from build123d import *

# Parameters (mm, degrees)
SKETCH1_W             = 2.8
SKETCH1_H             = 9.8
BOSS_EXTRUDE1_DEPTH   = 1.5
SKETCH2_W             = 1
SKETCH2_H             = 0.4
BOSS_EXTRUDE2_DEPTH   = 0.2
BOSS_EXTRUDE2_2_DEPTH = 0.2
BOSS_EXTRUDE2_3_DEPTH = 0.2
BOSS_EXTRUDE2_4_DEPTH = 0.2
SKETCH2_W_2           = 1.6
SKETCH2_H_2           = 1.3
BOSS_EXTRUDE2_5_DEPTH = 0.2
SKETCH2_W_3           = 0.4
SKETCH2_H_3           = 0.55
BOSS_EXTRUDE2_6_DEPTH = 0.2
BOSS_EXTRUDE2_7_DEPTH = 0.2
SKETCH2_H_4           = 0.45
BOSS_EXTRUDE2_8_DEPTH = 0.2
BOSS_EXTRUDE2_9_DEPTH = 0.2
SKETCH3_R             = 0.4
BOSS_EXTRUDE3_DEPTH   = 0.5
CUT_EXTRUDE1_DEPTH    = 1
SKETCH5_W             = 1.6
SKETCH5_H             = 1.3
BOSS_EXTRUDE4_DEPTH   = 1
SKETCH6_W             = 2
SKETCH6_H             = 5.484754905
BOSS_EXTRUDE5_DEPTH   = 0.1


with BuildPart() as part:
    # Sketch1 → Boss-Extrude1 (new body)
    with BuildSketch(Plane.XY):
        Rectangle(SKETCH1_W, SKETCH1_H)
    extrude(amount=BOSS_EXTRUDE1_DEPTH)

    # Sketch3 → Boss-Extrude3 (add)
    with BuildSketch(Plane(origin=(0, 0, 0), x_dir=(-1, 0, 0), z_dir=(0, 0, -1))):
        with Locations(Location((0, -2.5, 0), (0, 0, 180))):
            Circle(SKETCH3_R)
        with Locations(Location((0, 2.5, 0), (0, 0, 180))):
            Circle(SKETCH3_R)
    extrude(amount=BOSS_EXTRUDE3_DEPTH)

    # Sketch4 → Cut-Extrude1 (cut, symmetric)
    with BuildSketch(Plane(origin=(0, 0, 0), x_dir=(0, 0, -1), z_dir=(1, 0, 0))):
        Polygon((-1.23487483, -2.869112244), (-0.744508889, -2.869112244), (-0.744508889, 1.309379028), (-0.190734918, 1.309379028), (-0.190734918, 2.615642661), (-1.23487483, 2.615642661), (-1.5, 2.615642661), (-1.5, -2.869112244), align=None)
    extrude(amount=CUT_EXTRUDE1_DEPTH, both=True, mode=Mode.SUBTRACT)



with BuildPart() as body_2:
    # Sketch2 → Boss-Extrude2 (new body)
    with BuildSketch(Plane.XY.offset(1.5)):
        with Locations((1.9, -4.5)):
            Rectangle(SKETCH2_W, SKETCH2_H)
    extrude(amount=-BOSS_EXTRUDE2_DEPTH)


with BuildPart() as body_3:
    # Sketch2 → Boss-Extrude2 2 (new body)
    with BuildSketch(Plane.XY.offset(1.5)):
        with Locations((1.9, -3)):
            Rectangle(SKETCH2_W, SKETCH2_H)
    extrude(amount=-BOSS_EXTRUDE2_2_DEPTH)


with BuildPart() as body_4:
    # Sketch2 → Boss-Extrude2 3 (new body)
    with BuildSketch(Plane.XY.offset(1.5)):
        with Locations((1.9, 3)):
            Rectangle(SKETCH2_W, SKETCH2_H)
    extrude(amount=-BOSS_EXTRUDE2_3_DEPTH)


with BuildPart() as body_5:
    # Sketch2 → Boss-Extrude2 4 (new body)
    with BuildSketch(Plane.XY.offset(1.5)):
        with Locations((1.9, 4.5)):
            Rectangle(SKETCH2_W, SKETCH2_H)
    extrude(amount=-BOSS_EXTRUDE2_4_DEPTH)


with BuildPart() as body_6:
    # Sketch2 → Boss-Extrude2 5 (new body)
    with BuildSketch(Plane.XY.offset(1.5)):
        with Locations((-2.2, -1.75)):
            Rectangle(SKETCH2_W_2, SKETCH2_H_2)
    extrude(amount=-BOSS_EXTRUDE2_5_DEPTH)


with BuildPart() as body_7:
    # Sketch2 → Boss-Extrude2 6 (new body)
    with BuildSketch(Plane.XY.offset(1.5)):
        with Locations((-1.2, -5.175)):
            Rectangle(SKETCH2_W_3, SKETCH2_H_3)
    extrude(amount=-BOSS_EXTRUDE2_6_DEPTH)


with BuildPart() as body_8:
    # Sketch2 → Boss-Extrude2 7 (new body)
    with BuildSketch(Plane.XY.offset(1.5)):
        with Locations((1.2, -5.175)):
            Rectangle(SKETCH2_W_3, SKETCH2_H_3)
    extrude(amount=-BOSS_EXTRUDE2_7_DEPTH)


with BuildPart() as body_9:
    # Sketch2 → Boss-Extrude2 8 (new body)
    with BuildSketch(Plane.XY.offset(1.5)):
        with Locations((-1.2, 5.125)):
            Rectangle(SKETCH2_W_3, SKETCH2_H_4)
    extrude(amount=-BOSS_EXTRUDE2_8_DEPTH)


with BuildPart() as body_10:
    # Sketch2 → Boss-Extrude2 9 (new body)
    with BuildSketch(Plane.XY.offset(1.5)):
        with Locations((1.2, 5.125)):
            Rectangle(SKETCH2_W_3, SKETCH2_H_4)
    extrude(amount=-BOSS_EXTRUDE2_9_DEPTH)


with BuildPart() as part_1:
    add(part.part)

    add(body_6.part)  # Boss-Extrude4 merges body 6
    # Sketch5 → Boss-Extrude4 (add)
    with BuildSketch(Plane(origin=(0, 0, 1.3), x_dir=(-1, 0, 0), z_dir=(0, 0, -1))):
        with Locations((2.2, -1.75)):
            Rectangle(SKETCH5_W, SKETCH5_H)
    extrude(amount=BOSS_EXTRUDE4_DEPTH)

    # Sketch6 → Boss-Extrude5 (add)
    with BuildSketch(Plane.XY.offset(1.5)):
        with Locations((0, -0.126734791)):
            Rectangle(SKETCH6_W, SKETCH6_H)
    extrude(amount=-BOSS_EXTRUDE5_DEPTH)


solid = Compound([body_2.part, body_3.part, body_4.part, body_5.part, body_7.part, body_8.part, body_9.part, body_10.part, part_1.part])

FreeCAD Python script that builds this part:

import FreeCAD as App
import Part
import Sketcher
from FreeCAD import Vector
Q = App.Units.Quantity

doc = App.newDocument("Part")
body = doc.addObject("PartDesign::Body", "Body")

sketch1 = body.newObject("Sketcher::SketchObject", "Sketch")
sketch1.AttachmentSupport = (doc.getObject("XY_Plane"), [""])
sketch1.MapMode = "FlatFace"
sketch1.addGeometry([
    Part.LineSegment(Vector(-1.4, 4.9, 0), Vector(-1.4, -4.9, 0)),
    Part.LineSegment(Vector(-1.4, -4.9, 0), Vector(1.4, -4.9, 0)),
    Part.LineSegment(Vector(1.4, -4.9, 0), Vector(1.4, 4.9, 0)),
    Part.LineSegment(Vector(1.4, 4.9, 0), Vector(-1.4, 4.9, 0)),
], False)
sketch1.addConstraint([
    Sketcher.Constraint("Coincident", 0, 2, 1, 1),
    Sketcher.Constraint("Coincident", 1, 2, 2, 1),
    Sketcher.Constraint("Coincident", 2, 2, 3, 1),
    Sketcher.Constraint("Coincident", 3, 2, 0, 1),
    Sketcher.Constraint("Vertical", 0),
    Sketcher.Constraint("Horizontal", 1),
    Sketcher.Constraint("Vertical", 2),
    Sketcher.Constraint("Horizontal", 3),
    Sketcher.Constraint("Symmetric", 0, 2, 2, 2, -1, 1),
    Sketcher.Constraint("DistanceX", 1, 1, 1, 2, Q("2.8 mm")),
    Sketcher.Constraint("DistanceY", 0, 2, 0, 1, Q("9.8 mm")),
])
pad1 = body.newObject("PartDesign::Pad", "Pad")
pad1.Profile = sketch1
pad1.Length = 1.5

sketch2 = body.newObject("Sketcher::SketchObject", "Sketch001")
sketch2.AttachmentSupport = (doc.getObject("XY_Plane"), [""])
sketch2.MapMode = "FlatFace"
sketch2.addGeometry([
    Part.Circle(Vector(0, -2.5, 0), Vector(0, 0, 1), 0.4),
    Part.Circle(Vector(0, 2.5, 0), Vector(0, 0, 1), 0.4),
], False)
sketch2.addConstraint([
    Sketcher.Constraint("Equal", 0, 1),
    Sketcher.Constraint("Symmetric", 0, 3, 1, 3, -1, 1),
    Sketcher.Constraint("PointOnObject", 0, 3, -2),
    Sketcher.Constraint("Diameter", 0, Q("0.8 mm")),
    Sketcher.Constraint("DistanceY", 0, 3, 1, 3, Q("5 mm")),
])
pad2 = body.newObject("PartDesign::Pad", "Pad001")
pad2.Profile = sketch2
pad2.Length = 0.5
pad2.Reversed = True

sketch3 = body.newObject("Sketcher::SketchObject", "Sketch002")
sketch3.AttachmentSupport = (doc.getObject("YZ_Plane"), [""])
sketch3.MapMode = "FlatFace"
sketch3.addGeometry([
    Part.LineSegment(Vector(-2.9, 0.7, 0), Vector(1.3, 0.7, 0)),
    Part.LineSegment(Vector(1.3, 0.7, 0), Vector(1.3, 0.2, 0)),
    Part.LineSegment(Vector(1.3, 0.2, 0), Vector(2.6, 0.2, 0)),
    Part.LineSegment(Vector(2.6, 0.2, 0), Vector(2.6, 1.5, 0)),
    Part.LineSegment(Vector(2.6, 1.5, 0), Vector(-2.9, 1.5, 0)),
    Part.LineSegment(Vector(-2.9, 1.5, 0), Vector(-2.9, 0.7, 0)),
], False)
sketch3.addConstraint([
    Sketcher.Constraint("Coincident", 0, 2, 1, 1),
    Sketcher.Constraint("Coincident", 1, 2, 2, 1),
    Sketcher.Constraint("Coincident", 2, 2, 3, 1),
    Sketcher.Constraint("Coincident", 3, 2, 4, 1),
    Sketcher.Constraint("Coincident", 4, 2, 5, 1),
    Sketcher.Constraint("Coincident", 5, 2, 0, 1),
    Sketcher.Constraint("Horizontal", 0),
    Sketcher.Constraint("Vertical", 1),
    Sketcher.Constraint("Horizontal", 2),
    Sketcher.Constraint("Vertical", 3),
    Sketcher.Constraint("Horizontal", 4),
    Sketcher.Constraint("Vertical", 5),
    Sketcher.Constraint("DistanceY", -1, 1, 3, 2, Q("1.5 mm")),
    Sketcher.Constraint("DistanceX", 0, 1, 0, 2, Q("4.178491 mm")),
    Sketcher.Constraint("DistanceY", 5, 2, 5, 1, Q("0.755491 mm")),
    Sketcher.Constraint("DistanceX", 2, 1, 2, 2, Q("1.306264 mm")),
    Sketcher.Constraint("DistanceY", 1, 2, 1, 1, Q("0.553774 mm")),
    Sketcher.Constraint("DistanceX", -1, 1, 0, 2, Q("1.309379 mm")),
])
pocket1 = body.newObject("PartDesign::Pocket", "Pocket")
pocket1.Profile = sketch3
pocket1.Length = 2
pocket1.Midplane = True
body2 = doc.addObject("PartDesign::Body", "Body001")

sketch4 = body2.newObject("Sketcher::SketchObject", "Sketch003")
sketch4.AttachmentSupport = (doc.getObject("XY_Plane001"), [""])
sketch4.MapMode = "FlatFace"
sketch4.AttachmentOffset = App.Placement(Vector(0, 0, 1.5), App.Rotation())
sketch4.addGeometry([
    Part.LineSegment(Vector(1.4, -4.3, 0), Vector(1.4, -4.7, 0)),
    Part.LineSegment(Vector(1.4, -4.7, 0), Vector(2.4, -4.7, 0)),
    Part.LineSegment(Vector(2.4, -4.7, 0), Vector(2.4, -4.3, 0)),
    Part.LineSegment(Vector(2.4, -4.3, 0), Vector(1.4, -4.3, 0)),
], False)
sketch4.addConstraint([
    Sketcher.Constraint("Coincident", 0, 2, 1, 1),
    Sketcher.Constraint("Coincident", 1, 2, 2, 1),
    Sketcher.Constraint("Coincident", 2, 2, 3, 1),
    Sketcher.Constraint("Coincident", 3, 2, 0, 1),
    Sketcher.Constraint("Vertical", 0),
    Sketcher.Constraint("Horizontal", 1),
    Sketcher.Constraint("Vertical", 2),
    Sketcher.Constraint("Horizontal", 3),
    Sketcher.Constraint("DistanceX", 1, 1, 1, 2, Q("1 mm")),
    Sketcher.Constraint("DistanceY", 0, 2, 0, 1, Q("0.4 mm")),
    Sketcher.Constraint("DistanceX", -1, 1, 0, 2, Q("1.4 mm")),
    Sketcher.Constraint("DistanceY", 0, 2, -1, 1, Q("4.7 mm")),
])
pad3 = body2.newObject("PartDesign::Pad", "Pad002")
pad3.Profile = sketch4
pad3.Length = 0.2
pad3.Reversed = True
body3 = doc.addObject("PartDesign::Body", "Body002")

sketch5 = body3.newObject("Sketcher::SketchObject", "Sketch004")
sketch5.AttachmentSupport = (doc.getObject("XY_Plane002"), [""])
sketch5.MapMode = "FlatFace"
sketch5.AttachmentOffset = App.Placement(Vector(0, 0, 1.5), App.Rotation())
sketch5.addGeometry([
    Part.LineSegment(Vector(1.4, -2.8, 0), Vector(1.4, -3.2, 0)),
    Part.LineSegment(Vector(1.4, -3.2, 0), Vector(2.4, -3.2, 0)),
    Part.LineSegment(Vector(2.4, -3.2, 0), Vector(2.4, -2.8, 0)),
    Part.LineSegment(Vector(2.4, -2.8, 0), Vector(1.4, -2.8, 0)),
], False)
sketch5.addConstraint([
    Sketcher.Constraint("Coincident", 0, 2, 1, 1),
    Sketcher.Constraint("Coincident", 1, 2, 2, 1),
    Sketcher.Constraint("Coincident", 2, 2, 3, 1),
    Sketcher.Constraint("Coincident", 3, 2, 0, 1),
    Sketcher.Constraint("Vertical", 0),
    Sketcher.Constraint("Horizontal", 1),
    Sketcher.Constraint("Vertical", 2),
    Sketcher.Constraint("Horizontal", 3),
    Sketcher.Constraint("DistanceX", 1, 1, 1, 2, Q("1 mm")),
    Sketcher.Constraint("DistanceY", 0, 2, 0, 1, Q("0.4 mm")),
    Sketcher.Constraint("DistanceX", -1, 1, 0, 2, Q("1.4 mm")),
    Sketcher.Constraint("DistanceY", 0, 2, -1, 1, Q("3.2 mm")),
])
pad4 = body3.newObject("PartDesign::Pad", "Pad003")
pad4.Profile = sketch5
pad4.Length = 0.2
pad4.Reversed = True
body4 = doc.addObject("PartDesign::Body", "Body003")

sketch6 = body4.newObject("Sketcher::SketchObject", "Sketch005")
sketch6.AttachmentSupport = (doc.getObject("XY_Plane003"), [""])
sketch6.MapMode = "FlatFace"
sketch6.AttachmentOffset = App.Placement(Vector(0, 0, 1.5), App.Rotation())
sketch6.addGeometry([
    Part.LineSegment(Vector(1.4, 3.2, 0), Vector(1.4, 2.8, 0)),
    Part.LineSegment(Vector(1.4, 2.8, 0), Vector(2.4, 2.8, 0)),
    Part.LineSegment(Vector(2.4, 2.8, 0), Vector(2.4, 3.2, 0)),
    Part.LineSegment(Vector(2.4, 3.2, 0), Vector(1.4, 3.2, 0)),
], False)
sketch6.addConstraint([
    Sketcher.Constraint("Coincident", 0, 2, 1, 1),
    Sketcher.Constraint("Coincident", 1, 2, 2, 1),
    Sketcher.Constraint("Coincident", 2, 2, 3, 1),
    Sketcher.Constraint("Coincident", 3, 2, 0, 1),
    Sketcher.Constraint("Vertical", 0),
    Sketcher.Constraint("Horizontal", 1),
    Sketcher.Constraint("Vertical", 2),
    Sketcher.Constraint("Horizontal", 3),
    Sketcher.Constraint("DistanceX", 1, 1, 1, 2, Q("1 mm")),
    Sketcher.Constraint("DistanceY", 0, 2, 0, 1, Q("0.4 mm")),
    Sketcher.Constraint("DistanceX", -1, 1, 0, 2, Q("1.4 mm")),
    Sketcher.Constraint("DistanceY", -1, 1, 0, 2, Q("2.8 mm")),
])
pad5 = body4.newObject("PartDesign::Pad", "Pad004")
pad5.Profile = sketch6
pad5.Length = 0.2
pad5.Reversed = True
body5 = doc.addObject("PartDesign::Body", "Body004")

sketch7 = body5.newObject("Sketcher::SketchObject", "Sketch006")
sketch7.AttachmentSupport = (doc.getObject("XY_Plane004"), [""])
sketch7.MapMode = "FlatFace"
sketch7.AttachmentOffset = App.Placement(Vector(0, 0, 1.5), App.Rotation())
sketch7.addGeometry([
    Part.LineSegment(Vector(1.4, 4.7, 0), Vector(1.4, 4.3, 0)),
    Part.LineSegment(Vector(1.4, 4.3, 0), Vector(2.4, 4.3, 0)),
    Part.LineSegment(Vector(2.4, 4.3, 0), Vector(2.4, 4.7, 0)),
    Part.LineSegment(Vector(2.4, 4.7, 0), Vector(1.4, 4.7, 0)),
], False)
sketch7.addConstraint([
    Sketcher.Constraint("Coincident", 0, 2, 1, 1),
    Sketcher.Constraint("Coincident", 1, 2, 2, 1),
    Sketcher.Constraint("Coincident", 2, 2, 3, 1),
    Sketcher.Constraint("Coincident", 3, 2, 0, 1),
    Sketcher.Constraint("Vertical", 0),
    Sketcher.Constraint("Horizontal", 1),
    Sketcher.Constraint("Vertical", 2),
    Sketcher.Constraint("Horizontal", 3),
    Sketcher.Constraint("DistanceX", 1, 1, 1, 2, Q("1 mm")),
    Sketcher.Constraint("DistanceY", 0, 2, 0, 1, Q("0.4 mm")),
    Sketcher.Constraint("DistanceX", -1, 1, 0, 2, Q("1.4 mm")),
    Sketcher.Constraint("DistanceY", -1, 1, 0, 2, Q("4.3 mm")),
])
pad6 = body5.newObject("PartDesign::Pad", "Pad005")
pad6.Profile = sketch7
pad6.Length = 0.2
pad6.Reversed = True
body6 = doc.addObject("PartDesign::Body", "Body005")

sketch8 = body6.newObject("Sketcher::SketchObject", "Sketch007")
sketch8.AttachmentSupport = (doc.getObject("XY_Plane005"), [""])
sketch8.MapMode = "FlatFace"
sketch8.AttachmentOffset = App.Placement(Vector(0, 0, 1.5), App.Rotation())
sketch8.addGeometry([
    Part.LineSegment(Vector(-3, -1.1, 0), Vector(-3, -2.4, 0)),
    Part.LineSegment(Vector(-3, -2.4, 0), Vector(-1.4, -2.4, 0)),
    Part.LineSegment(Vector(-1.4, -2.4, 0), Vector(-1.4, -1.1, 0)),
    Part.LineSegment(Vector(-1.4, -1.1, 0), Vector(-3, -1.1, 0)),
], False)
sketch8.addConstraint([
    Sketcher.Constraint("Coincident", 0, 2, 1, 1),
    Sketcher.Constraint("Coincident", 1, 2, 2, 1),
    Sketcher.Constraint("Coincident", 2, 2, 3, 1),
    Sketcher.Constraint("Coincident", 3, 2, 0, 1),
    Sketcher.Constraint("Vertical", 0),
    Sketcher.Constraint("Horizontal", 1),
    Sketcher.Constraint("Vertical", 2),
    Sketcher.Constraint("Horizontal", 3),
    Sketcher.Constraint("DistanceX", 1, 1, 1, 2, Q("1.6 mm")),
    Sketcher.Constraint("DistanceY", 0, 2, 0, 1, Q("1.3 mm")),
    Sketcher.Constraint("DistanceX", 0, 2, -1, 1, Q("3 mm")),
    Sketcher.Constraint("DistanceY", 0, 2, -1, 1, Q("2.4 mm")),
])
pad7 = body6.newObject("PartDesign::Pad", "Pad006")
pad7.Profile = sketch8
pad7.Length = 0.2
pad7.Reversed = True
body7 = doc.addObject("PartDesign::Body", "Body006")

sketch9 = body7.newObject("Sketcher::SketchObject", "Sketch008")
sketch9.AttachmentSupport = (doc.getObject("XY_Plane006"), [""])
sketch9.MapMode = "FlatFace"
sketch9.AttachmentOffset = App.Placement(Vector(0, 0, 1.5), App.Rotation())
sketch9.addGeometry([
    Part.LineSegment(Vector(-1.4, -4.9, 0), Vector(-1.4, -5.45, 0)),
    Part.LineSegment(Vector(-1.4, -5.45, 0), Vector(-1, -5.45, 0)),
    Part.LineSegment(Vector(-1, -5.45, 0), Vector(-1, -4.9, 0)),
    Part.LineSegment(Vector(-1, -4.9, 0), Vector(-1.4, -4.9, 0)),
], False)
sketch9.addConstraint([
    Sketcher.Constraint("Coincident", 0, 2, 1, 1),
    Sketcher.Constraint("Coincident", 1, 2, 2, 1),
    Sketcher.Constraint("Coincident", 2, 2, 3, 1),
    Sketcher.Constraint("Coincident", 3, 2, 0, 1),
    Sketcher.Constraint("Vertical", 0),
    Sketcher.Constraint("Horizontal", 1),
    Sketcher.Constraint("Vertical", 2),
    Sketcher.Constraint("Horizontal", 3),
    Sketcher.Constraint("DistanceX", 1, 1, 1, 2, Q("0.4 mm")),
    Sketcher.Constraint("DistanceX", 1, 2, -1, 1, Q("1 mm")),
    Sketcher.Constraint("DistanceY", 0, 2, 0, 1, Q("0.55 mm")),
    Sketcher.Constraint("DistanceY", 2, 2, -1, 1, Q("4.9 mm")),
])
pad8 = body7.newObject("PartDesign::Pad", "Pad007")
pad8.Profile = sketch9
pad8.Length = 0.2
pad8.Reversed = True
body8 = doc.addObject("PartDesign::Body", "Body007")

sketch10 = body8.newObject("Sketcher::SketchObject", "Sketch009")
sketch10.AttachmentSupport = (doc.getObject("XY_Plane007"), [""])
sketch10.MapMode = "FlatFace"
sketch10.AttachmentOffset = App.Placement(Vector(0, 0, 1.5), App.Rotation())
sketch10.addGeometry([
    Part.LineSegment(Vector(1, -4.9, 0), Vector(1, -5.45, 0)),
    Part.LineSegment(Vector(1, -5.45, 0), Vector(1.4, -5.45, 0)),
    Part.LineSegment(Vector(1.4, -5.45, 0), Vector(1.4, -4.9, 0)),
    Part.LineSegment(Vector(1.4, -4.9, 0), Vector(1, -4.9, 0)),
], False)
sketch10.addConstraint([
    Sketcher.Constraint("Coincident", 0, 2, 1, 1),
    Sketcher.Constraint("Coincident", 1, 2, 2, 1),
    Sketcher.Constraint("Coincident", 2, 2, 3, 1),
    Sketcher.Constraint("Coincident", 3, 2, 0, 1),
    Sketcher.Constraint("Vertical", 0),
    Sketcher.Constraint("Horizontal", 1),
    Sketcher.Constraint("Vertical", 2),
    Sketcher.Constraint("Horizontal", 3),
    Sketcher.Constraint("DistanceX", 1, 1, 1, 2, Q("0.4 mm")),
    Sketcher.Constraint("DistanceX", -1, 1, 0, 2, Q("1 mm")),
    Sketcher.Constraint("DistanceY", 0, 2, 0, 1, Q("0.55 mm")),
    Sketcher.Constraint("DistanceY", 2, 2, -1, 1, Q("4.9 mm")),
])
pad9 = body8.newObject("PartDesign::Pad", "Pad008")
pad9.Profile = sketch10
pad9.Length = 0.2
pad9.Reversed = True
body9 = doc.addObject("PartDesign::Body", "Body008")

sketch11 = body9.newObject("Sketcher::SketchObject", "Sketch010")
sketch11.AttachmentSupport = (doc.getObject("XY_Plane008"), [""])
sketch11.MapMode = "FlatFace"
sketch11.AttachmentOffset = App.Placement(Vector(0, 0, 1.5), App.Rotation())
sketch11.addGeometry([
    Part.LineSegment(Vector(-1.4, 5.35, 0), Vector(-1.4, 4.9, 0)),
    Part.LineSegment(Vector(-1.4, 4.9, 0), Vector(-1, 4.9, 0)),
    Part.LineSegment(Vector(-1, 4.9, 0), Vector(-1, 5.35, 0)),
    Part.LineSegment(Vector(-1, 5.35, 0), Vector(-1.4, 5.35, 0)),
], False)
sketch11.addConstraint([
    Sketcher.Constraint("Coincident", 0, 2, 1, 1),
    Sketcher.Constraint("Coincident", 1, 2, 2, 1),
    Sketcher.Constraint("Coincident", 2, 2, 3, 1),
    Sketcher.Constraint("Coincident", 3, 2, 0, 1),
    Sketcher.Constraint("Vertical", 0),
    Sketcher.Constraint("Horizontal", 1),
    Sketcher.Constraint("Vertical", 2),
    Sketcher.Constraint("Horizontal", 3),
    Sketcher.Constraint("DistanceX", 1, 1, 1, 2, Q("0.4 mm")),
    Sketcher.Constraint("DistanceX", 1, 2, -1, 1, Q("1 mm")),
    Sketcher.Constraint("DistanceY", 0, 2, 0, 1, Q("0.45 mm")),
    Sketcher.Constraint("DistanceY", -1, 1, 0, 2, Q("4.9 mm")),
])
pad10 = body9.newObject("PartDesign::Pad", "Pad009")
pad10.Profile = sketch11
pad10.Length = 0.2
pad10.Reversed = True
body10 = doc.addObject("PartDesign::Body", "Body009")

sketch12 = body10.newObject("Sketcher::SketchObject", "Sketch011")
sketch12.AttachmentSupport = (doc.getObject("XY_Plane009"), [""])
sketch12.MapMode = "FlatFace"
sketch12.AttachmentOffset = App.Placement(Vector(0, 0, 1.5), App.Rotation())
sketch12.addGeometry([
    Part.LineSegment(Vector(1, 5.35, 0), Vector(1, 4.9, 0)),
    Part.LineSegment(Vector(1, 4.9, 0), Vector(1.4, 4.9, 0)),
    Part.LineSegment(Vector(1.4, 4.9, 0), Vector(1.4, 5.35, 0)),
    Part.LineSegment(Vector(1.4, 5.35, 0), Vector(1, 5.35, 0)),
], False)
sketch12.addConstraint([
    Sketcher.Constraint("Coincident", 0, 2, 1, 1),
    Sketcher.Constraint("Coincident", 1, 2, 2, 1),
    Sketcher.Constraint("Coincident", 2, 2, 3, 1),
    Sketcher.Constraint("Coincident", 3, 2, 0, 1),
    Sketcher.Constraint("Vertical", 0),
    Sketcher.Constraint("Horizontal", 1),
    Sketcher.Constraint("Vertical", 2),
    Sketcher.Constraint("Horizontal", 3),
    Sketcher.Constraint("DistanceX", 1, 1, 1, 2, Q("0.4 mm")),
    Sketcher.Constraint("DistanceX", -1, 1, 0, 2, Q("1 mm")),
    Sketcher.Constraint("DistanceY", 0, 2, 0, 1, Q("0.45 mm")),
    Sketcher.Constraint("DistanceY", -1, 1, 0, 2, Q("4.9 mm")),
])
pad11 = body10.newObject("PartDesign::Pad", "Pad010")
pad11.Profile = sketch12
pad11.Length = 0.2
pad11.Reversed = True
doc.recompute()

boolean = body.newObject("PartDesign::Boolean", "Boolean")
boolean.Type = "Fuse"
boolean.addObjects([body6])

sketch13 = body.newObject("Sketcher::SketchObject", "Sketch012")
sketch13.AttachmentSupport = (doc.getObject("XY_Plane"), [""])
sketch13.MapMode = "FlatFace"
sketch13.AttachmentOffset = App.Placement(Vector(0, 0, 1.3), App.Rotation())
sketch13.addGeometry([
    Part.LineSegment(Vector(-1.4, -1.1, 0), Vector(-1.4, -2.4, 0)),
    Part.LineSegment(Vector(-1.4, -2.4, 0), Vector(-3, -2.4, 0)),
    Part.LineSegment(Vector(-3, -2.4, 0), Vector(-3, -1.1, 0)),
    Part.LineSegment(Vector(-3, -1.1, 0), Vector(-1.4, -1.1, 0)),
], False)
sketch13.addConstraint([
    Sketcher.Constraint("Coincident", 0, 2, 1, 1),
    Sketcher.Constraint("Coincident", 1, 2, 2, 1),
    Sketcher.Constraint("Coincident", 2, 2, 3, 1),
    Sketcher.Constraint("Coincident", 3, 2, 0, 1),
    Sketcher.Constraint("Vertical", 0),
    Sketcher.Constraint("Horizontal", 1),
    Sketcher.Constraint("Vertical", 2),
    Sketcher.Constraint("Horizontal", 3),
    Sketcher.Constraint("DistanceX", 1, 2, 1, 1, Q("1.6 mm")),
    Sketcher.Constraint("DistanceY", 0, 2, 0, 1, Q("1.3 mm")),
    Sketcher.Constraint("DistanceX", 1, 2, -1, 1, Q("3 mm")),
    Sketcher.Constraint("DistanceY", 0, 2, -1, 1, Q("2.4 mm")),
])
pad12 = body.newObject("PartDesign::Pad", "Pad011")
pad12.Profile = sketch13
pad12.Length = 1
pad12.Reversed = True

sketch14 = body.newObject("Sketcher::SketchObject", "Sketch013")
sketch14.AttachmentSupport = (doc.getObject("XY_Plane"), [""])
sketch14.MapMode = "FlatFace"
sketch14.AttachmentOffset = App.Placement(Vector(0, 0, 1.5), App.Rotation())
sketch14.addGeometry([
    Part.LineSegment(Vector(-1, 2.6, 0), Vector(-1, -2.9, 0)),
    Part.LineSegment(Vector(-1, -2.9, 0), Vector(1, -2.9, 0)),
    Part.LineSegment(Vector(1, -2.9, 0), Vector(1, 2.6, 0)),
    Part.LineSegment(Vector(1, 2.6, 0), Vector(-1, 2.6, 0)),
], False)
sketch14.addConstraint([
    Sketcher.Constraint("Coincident", 0, 2, 1, 1),
    Sketcher.Constraint("Coincident", 1, 2, 2, 1),
    Sketcher.Constraint("Coincident", 2, 2, 3, 1),
    Sketcher.Constraint("Coincident", 3, 2, 0, 1),
    Sketcher.Constraint("Vertical", 0),
    Sketcher.Constraint("Horizontal", 1),
    Sketcher.Constraint("Vertical", 2),
    Sketcher.Constraint("Horizontal", 3),
    Sketcher.Constraint("DistanceX", 1, 1, 1, 2, Q("2 mm")),
    Sketcher.Constraint("DistanceX", 0, 2, -1, 1, Q("1 mm")),
    Sketcher.Constraint("DistanceY", 0, 2, 0, 1, Q("5.484755 mm")),
    Sketcher.Constraint("DistanceY", 0, 2, -1, 1, Q("2.869112 mm")),
])
pad13 = body.newObject("PartDesign::Pad", "Pad012")
pad13.Profile = sketch14
pad13.Length = 0.1
pad13.Reversed = True

doc.recompute()
